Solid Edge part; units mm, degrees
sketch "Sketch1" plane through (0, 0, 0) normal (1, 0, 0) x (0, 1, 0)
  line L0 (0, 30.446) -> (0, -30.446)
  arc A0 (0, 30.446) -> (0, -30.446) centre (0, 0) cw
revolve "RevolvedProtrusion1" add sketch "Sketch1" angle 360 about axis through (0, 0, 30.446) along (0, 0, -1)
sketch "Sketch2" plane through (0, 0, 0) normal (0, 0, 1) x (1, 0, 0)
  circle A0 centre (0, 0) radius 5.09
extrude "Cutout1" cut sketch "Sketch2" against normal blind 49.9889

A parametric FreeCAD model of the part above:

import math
import FreeCAD as App
import Part
import Sketcher
from FreeCAD import Vector
Q = App.Units.Quantity

doc = App.newDocument("Part")
body = doc.addObject("PartDesign::Body", "Body")

# Sketch on YZ plane
sketch1 = body.newObject("Sketcher::SketchObject", "Sketch")
sketch1.AttachmentSupport = (doc.getObject("YZ_Plane"), [""])
sketch1.MapMode = "FlatFace"
sketch1.addGeometry([
    Part.ArcOfCircle(Part.Circle(Vector(0, 0, 0), Vector(0, 0, 1), 30), math.radians(-90), math.radians(90)),
    Part.LineSegment(Vector(0, 30, 0), Vector(0, -30, 0)),
], False)
sketch1.addConstraint([
    Sketcher.Constraint("Coincident", 0, 1, 1, 2),
    Sketcher.Constraint("Coincident", 1, 1, 0, 2),
    Sketcher.Constraint("Vertical", 1),
    Sketcher.Constraint("Coincident", 0, 3, -1, 1),
    Sketcher.Constraint("PointOnObject", 0, 1, -2),
    Sketcher.Constraint("Radius", 0, Q("30.446 mm")),
])
revolution = body.newObject("PartDesign::Revolution", "Revolution")
revolution.Profile = sketch1
revolution.ReferenceAxis = (sketch1, ["V_Axis"])
revolution.Angle = 360

# Sketch on XY plane
sketch2 = body.newObject("Sketcher::SketchObject", "Sketch001")
sketch2.AttachmentSupport = (doc.getObject("XY_Plane"), [""])
sketch2.MapMode = "FlatFace"
sketch2.addGeometry(Part.Circle(Vector(0, 0, 0), Vector(0, 0, 1), 5), False)
sketch2.addConstraint([
    Sketcher.Constraint("Coincident", 0, 3, -1, 1),
    Sketcher.Constraint("Diameter", 0, Q("10.18 mm")),
])
pocket1 = body.newObject("PartDesign::Pocket", "Pocket")
pocket1.Profile = sketch2
pocket1.Length = 49.9889

doc.recompute()
